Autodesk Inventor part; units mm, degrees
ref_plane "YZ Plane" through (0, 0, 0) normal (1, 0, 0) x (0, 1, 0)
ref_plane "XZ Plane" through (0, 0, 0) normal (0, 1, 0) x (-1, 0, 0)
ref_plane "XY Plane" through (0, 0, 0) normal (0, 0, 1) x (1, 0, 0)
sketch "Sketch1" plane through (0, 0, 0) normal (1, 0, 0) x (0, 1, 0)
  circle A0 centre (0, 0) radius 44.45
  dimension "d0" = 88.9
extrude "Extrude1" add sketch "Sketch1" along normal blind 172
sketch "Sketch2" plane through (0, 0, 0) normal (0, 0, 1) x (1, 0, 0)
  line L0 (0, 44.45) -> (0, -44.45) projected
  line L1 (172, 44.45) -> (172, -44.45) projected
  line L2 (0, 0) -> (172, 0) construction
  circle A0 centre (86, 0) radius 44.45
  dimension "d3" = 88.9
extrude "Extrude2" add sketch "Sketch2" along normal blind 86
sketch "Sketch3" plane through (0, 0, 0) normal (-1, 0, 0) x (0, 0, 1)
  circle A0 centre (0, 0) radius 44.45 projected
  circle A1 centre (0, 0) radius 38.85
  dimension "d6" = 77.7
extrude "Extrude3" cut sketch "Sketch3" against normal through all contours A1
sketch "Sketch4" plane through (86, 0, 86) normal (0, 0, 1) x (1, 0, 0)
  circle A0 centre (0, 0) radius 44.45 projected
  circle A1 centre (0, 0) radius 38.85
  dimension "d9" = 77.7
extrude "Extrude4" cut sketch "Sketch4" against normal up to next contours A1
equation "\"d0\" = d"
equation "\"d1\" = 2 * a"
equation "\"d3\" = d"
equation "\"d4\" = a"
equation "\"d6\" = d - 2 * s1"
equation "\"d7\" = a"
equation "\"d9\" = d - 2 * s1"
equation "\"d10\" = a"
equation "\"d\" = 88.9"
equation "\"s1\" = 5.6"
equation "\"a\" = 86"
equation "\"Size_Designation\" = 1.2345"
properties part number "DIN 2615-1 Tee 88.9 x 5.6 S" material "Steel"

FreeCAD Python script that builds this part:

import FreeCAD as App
import Part
import Sketcher

V = App.Vector

doc = App.newDocument("Part")
params = doc.addObject("Spreadsheet::Sheet", "Params")
for row, (alias, value) in enumerate([
    ("sketch1_diameter", "88.9 mm"),
    ("pad1_length", "172 mm"),
    ("sketch2_diameter", "88.9 mm"),
    ("pad2_length", "86 mm"),
    ("sketch3_diameter", "77.7 mm"),
    ("sketch4_diameter", "77.7 mm"),
], start=1):
    params.set(f"A{row}", alias)
    params.set(f"B{row}", "=" + value)
    params.setAlias(f"B{row}", alias)

body = doc.addObject("PartDesign::Body", "Body")

# Sketch on YZ plane
sketch1 = body.newObject("Sketcher::SketchObject", "Sketch")
sketch1.AttachmentSupport = (doc.getObject("YZ_Plane"), [""])
sketch1.MapMode = "FlatFace"
sketch1.addGeometry(Part.Circle(V(0, 0, 0), V(0, 0, 1), 44.45), False)
sketch1.addConstraint([
    Sketcher.Constraint("Coincident", 0, 3, -1, 1),
    Sketcher.Constraint("Diameter", 0, 88.9),
])
sketch1.setExpression("Constraints[1]", "Params.sketch1_diameter")
pad1 = body.newObject("PartDesign::Pad", "Pad")
pad1.Profile = sketch1
pad1.setExpression("Length", "Params.pad1_length")

# Sketch on XY plane
sketch2 = body.newObject("Sketcher::SketchObject", "Sketch001")
sketch2.AttachmentSupport = (doc.getObject("XY_Plane"), [""])
sketch2.MapMode = "FlatFace"
sketch2.addGeometry(Part.Circle(V(86, 0, 0), V(0, 0, 1), 44.45), False)
sketch2.addConstraint([
    Sketcher.Constraint("PointOnObject", 0, 3, -1),
    Sketcher.Constraint("Diameter", 0, 88.9),
    Sketcher.Constraint("DistanceX", -1, 1, 0, 3, 86.0),
])
sketch2.setExpression("Constraints[1]", "Params.sketch2_diameter")
pad2 = body.newObject("PartDesign::Pad", "Pad001")
pad2.Profile = sketch2
pad2.setExpression("Length", "Params.pad2_length")

# Sketch on YZ plane
sketch3 = body.newObject("Sketcher::SketchObject", "Sketch002")
sketch3.AttachmentSupport = (doc.getObject("YZ_Plane"), [""])
sketch3.MapMode = "FlatFace"
sketch3.addGeometry(Part.Circle(V(0, 0, 0), V(0, 0, 1), 38.85), False)
sketch3.addConstraint([
    Sketcher.Constraint("Coincident", 0, 3, -1, 1),
    Sketcher.Constraint("Diameter", 0, 77.7),
])
sketch3.setExpression("Constraints[1]", "Params.sketch3_diameter")
pocket1 = body.newObject("PartDesign::Pocket", "Pocket")
pocket1.Profile = sketch3
pocket1.Type = "ThroughAll"
pocket1.Reversed = True

# Sketch on XY plane
sketch4 = body.newObject("Sketcher::SketchObject", "Sketch003")
sketch4.AttachmentSupport = (doc.getObject("XY_Plane"), [""])
sketch4.MapMode = "FlatFace"
sketch4.AttachmentOffset = App.Placement(V(0, 0, 86), App.Rotation())
sketch4.addGeometry(Part.Circle(V(86, 0, 0), V(0, 0, 1), 38.85), False)
sketch4.addConstraint([
    Sketcher.Constraint("PointOnObject", 0, 3, -1),
    Sketcher.Constraint("Diameter", 0, 77.7),
    Sketcher.Constraint("DistanceX", -1, 1, 0, 3, 86.0),
])
sketch4.setExpression("Constraints[1]", "Params.sketch4_diameter")
pocket2 = body.newObject("PartDesign::Pocket", "Pocket001")
pocket2.Profile = sketch4
pocket2.Type = "UpToFirst"

doc.recompute()
